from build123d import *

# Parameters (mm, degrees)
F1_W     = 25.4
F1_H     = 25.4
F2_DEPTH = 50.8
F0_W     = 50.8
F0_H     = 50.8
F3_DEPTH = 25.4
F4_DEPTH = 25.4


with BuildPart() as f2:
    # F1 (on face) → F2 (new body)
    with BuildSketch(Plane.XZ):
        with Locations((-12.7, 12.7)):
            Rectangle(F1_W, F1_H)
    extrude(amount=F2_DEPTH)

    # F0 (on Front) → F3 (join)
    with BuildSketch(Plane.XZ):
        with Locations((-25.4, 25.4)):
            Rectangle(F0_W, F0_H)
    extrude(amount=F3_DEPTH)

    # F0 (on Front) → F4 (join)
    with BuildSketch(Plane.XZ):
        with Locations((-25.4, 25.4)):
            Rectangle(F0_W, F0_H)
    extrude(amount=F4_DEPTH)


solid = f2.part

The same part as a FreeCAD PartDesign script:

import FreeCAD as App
import Part
import Sketcher

V = App.Vector
Q = App.Units.Quantity

doc = App.newDocument("Part")
body = doc.addObject("PartDesign::Body", "Body")

# Sketch on XZ plane
sketch1 = body.newObject("Sketcher::SketchObject", "Sketch")
sketch1.AttachmentSupport = (doc.getObject("XZ_Plane"), [""])
sketch1.MapMode = "FlatFace"
sketch1.addGeometry([
    Part.LineSegment(V(-25, 25, 0), V(-25, 0, 0)),
    Part.LineSegment(V(-25, 0, 0), V(0, 0, 0)),
    Part.LineSegment(V(0, 0, 0), V(0, 25, 0)),
    Part.LineSegment(V(0, 25, 0), V(-25, 25, 0)),
], False)
sketch1.addConstraint([
    Sketcher.Constraint("Coincident", 0, 2, 1, 1),
    Sketcher.Constraint("Coincident", 1, 2, 2, 1),
    Sketcher.Constraint("Coincident", 2, 2, 3, 1),
    Sketcher.Constraint("Coincident", 3, 2, 0, 1),
    Sketcher.Constraint("Vertical", 0),
    Sketcher.Constraint("Horizontal", 1),
    Sketcher.Constraint("Vertical", 2),
    Sketcher.Constraint("Horizontal", 3),
    Sketcher.Constraint("Coincident", 1, 2, -1, 1),
    Sketcher.Constraint("Equal", 3, 0),
    Sketcher.Constraint("DistanceX", 1, 1, 1, 2, Q("1 in")),
])
pad1 = body.newObject("PartDesign::Pad", "Pad")
pad1.Profile = sketch1
pad1.Length = Q("2 in")

# Sketch on XZ plane
sketch2 = body.newObject("Sketcher::SketchObject", "Sketch001")
sketch2.AttachmentSupport = (doc.getObject("XZ_Plane"), [""])
sketch2.MapMode = "FlatFace"
sketch2.addGeometry([
    Part.LineSegment(V(-51, 51, 0), V(-51, 0, 0)),
    Part.LineSegment(V(-51, 0, 0), V(0, 0, 0)),
    Part.LineSegment(V(0, 0, 0), V(0, 51, 0)),
    Part.LineSegment(V(0, 51, 0), V(-51, 51, 0)),
], False)
sketch2.addConstraint([
    Sketcher.Constraint("Coincident", 0, 2, 1, 1),
    Sketcher.Constraint("Coincident", 1, 2, 2, 1),
    Sketcher.Constraint("Coincident", 2, 2, 3, 1),
    Sketcher.Constraint("Coincident", 3, 2, 0, 1),
    Sketcher.Constraint("Vertical", 0),
    Sketcher.Constraint("Horizontal", 1),
    Sketcher.Constraint("Vertical", 2),
    Sketcher.Constraint("Horizontal", 3),
    Sketcher.Constraint("Coincident", 1, 2, -1, 1),
    Sketcher.Constraint("Equal", 3, 0),
    Sketcher.Constraint("DistanceX", 1, 1, 1, 2, Q("2 in")),
])
pad2 = body.newObject("PartDesign::Pad", "Pad001")
pad2.Profile = sketch2
pad2.Length = Q("1 in")

# Sketch on XZ plane
sketch3 = body.newObject("Sketcher::SketchObject", "Sketch002")
sketch3.AttachmentSupport = (doc.getObject("XZ_Plane"), [""])
sketch3.MapMode = "FlatFace"
sketch3.addGeometry([
    Part.LineSegment(V(-51, 51, 0), V(-51, 0, 0)),
    Part.LineSegment(V(-51, 0, 0), V(0, 0, 0)),
    Part.LineSegment(V(0, 0, 0), V(0, 51, 0)),
    Part.LineSegment(V(0, 51, 0), V(-51, 51, 0)),
], False)
sketch3.addConstraint([
    Sketcher.Constraint("Coincident", 0, 2, 1, 1),
    Sketcher.Constraint("Coincident", 1, 2, 2, 1),
    Sketcher.Constraint("Coincident", 2, 2, 3, 1),
    Sketcher.Constraint("Coincident", 3, 2, 0, 1),
    Sketcher.Constraint("Vertical", 0),
    Sketcher.Constraint("Horizontal", 1),
    Sketcher.Constraint("Vertical", 2),
    Sketcher.Constraint("Horizontal", 3),
    Sketcher.Constraint("Coincident", 1, 2, -1, 1),
    Sketcher.Constraint("Equal", 3, 0),
    Sketcher.Constraint("DistanceX", 1, 1, 1, 2, Q("2 in")),
])
pad3 = body.newObject("PartDesign::Pad", "Pad002")
pad3.Profile = sketch3
pad3.Length = Q("1 in")

doc.recompute()
